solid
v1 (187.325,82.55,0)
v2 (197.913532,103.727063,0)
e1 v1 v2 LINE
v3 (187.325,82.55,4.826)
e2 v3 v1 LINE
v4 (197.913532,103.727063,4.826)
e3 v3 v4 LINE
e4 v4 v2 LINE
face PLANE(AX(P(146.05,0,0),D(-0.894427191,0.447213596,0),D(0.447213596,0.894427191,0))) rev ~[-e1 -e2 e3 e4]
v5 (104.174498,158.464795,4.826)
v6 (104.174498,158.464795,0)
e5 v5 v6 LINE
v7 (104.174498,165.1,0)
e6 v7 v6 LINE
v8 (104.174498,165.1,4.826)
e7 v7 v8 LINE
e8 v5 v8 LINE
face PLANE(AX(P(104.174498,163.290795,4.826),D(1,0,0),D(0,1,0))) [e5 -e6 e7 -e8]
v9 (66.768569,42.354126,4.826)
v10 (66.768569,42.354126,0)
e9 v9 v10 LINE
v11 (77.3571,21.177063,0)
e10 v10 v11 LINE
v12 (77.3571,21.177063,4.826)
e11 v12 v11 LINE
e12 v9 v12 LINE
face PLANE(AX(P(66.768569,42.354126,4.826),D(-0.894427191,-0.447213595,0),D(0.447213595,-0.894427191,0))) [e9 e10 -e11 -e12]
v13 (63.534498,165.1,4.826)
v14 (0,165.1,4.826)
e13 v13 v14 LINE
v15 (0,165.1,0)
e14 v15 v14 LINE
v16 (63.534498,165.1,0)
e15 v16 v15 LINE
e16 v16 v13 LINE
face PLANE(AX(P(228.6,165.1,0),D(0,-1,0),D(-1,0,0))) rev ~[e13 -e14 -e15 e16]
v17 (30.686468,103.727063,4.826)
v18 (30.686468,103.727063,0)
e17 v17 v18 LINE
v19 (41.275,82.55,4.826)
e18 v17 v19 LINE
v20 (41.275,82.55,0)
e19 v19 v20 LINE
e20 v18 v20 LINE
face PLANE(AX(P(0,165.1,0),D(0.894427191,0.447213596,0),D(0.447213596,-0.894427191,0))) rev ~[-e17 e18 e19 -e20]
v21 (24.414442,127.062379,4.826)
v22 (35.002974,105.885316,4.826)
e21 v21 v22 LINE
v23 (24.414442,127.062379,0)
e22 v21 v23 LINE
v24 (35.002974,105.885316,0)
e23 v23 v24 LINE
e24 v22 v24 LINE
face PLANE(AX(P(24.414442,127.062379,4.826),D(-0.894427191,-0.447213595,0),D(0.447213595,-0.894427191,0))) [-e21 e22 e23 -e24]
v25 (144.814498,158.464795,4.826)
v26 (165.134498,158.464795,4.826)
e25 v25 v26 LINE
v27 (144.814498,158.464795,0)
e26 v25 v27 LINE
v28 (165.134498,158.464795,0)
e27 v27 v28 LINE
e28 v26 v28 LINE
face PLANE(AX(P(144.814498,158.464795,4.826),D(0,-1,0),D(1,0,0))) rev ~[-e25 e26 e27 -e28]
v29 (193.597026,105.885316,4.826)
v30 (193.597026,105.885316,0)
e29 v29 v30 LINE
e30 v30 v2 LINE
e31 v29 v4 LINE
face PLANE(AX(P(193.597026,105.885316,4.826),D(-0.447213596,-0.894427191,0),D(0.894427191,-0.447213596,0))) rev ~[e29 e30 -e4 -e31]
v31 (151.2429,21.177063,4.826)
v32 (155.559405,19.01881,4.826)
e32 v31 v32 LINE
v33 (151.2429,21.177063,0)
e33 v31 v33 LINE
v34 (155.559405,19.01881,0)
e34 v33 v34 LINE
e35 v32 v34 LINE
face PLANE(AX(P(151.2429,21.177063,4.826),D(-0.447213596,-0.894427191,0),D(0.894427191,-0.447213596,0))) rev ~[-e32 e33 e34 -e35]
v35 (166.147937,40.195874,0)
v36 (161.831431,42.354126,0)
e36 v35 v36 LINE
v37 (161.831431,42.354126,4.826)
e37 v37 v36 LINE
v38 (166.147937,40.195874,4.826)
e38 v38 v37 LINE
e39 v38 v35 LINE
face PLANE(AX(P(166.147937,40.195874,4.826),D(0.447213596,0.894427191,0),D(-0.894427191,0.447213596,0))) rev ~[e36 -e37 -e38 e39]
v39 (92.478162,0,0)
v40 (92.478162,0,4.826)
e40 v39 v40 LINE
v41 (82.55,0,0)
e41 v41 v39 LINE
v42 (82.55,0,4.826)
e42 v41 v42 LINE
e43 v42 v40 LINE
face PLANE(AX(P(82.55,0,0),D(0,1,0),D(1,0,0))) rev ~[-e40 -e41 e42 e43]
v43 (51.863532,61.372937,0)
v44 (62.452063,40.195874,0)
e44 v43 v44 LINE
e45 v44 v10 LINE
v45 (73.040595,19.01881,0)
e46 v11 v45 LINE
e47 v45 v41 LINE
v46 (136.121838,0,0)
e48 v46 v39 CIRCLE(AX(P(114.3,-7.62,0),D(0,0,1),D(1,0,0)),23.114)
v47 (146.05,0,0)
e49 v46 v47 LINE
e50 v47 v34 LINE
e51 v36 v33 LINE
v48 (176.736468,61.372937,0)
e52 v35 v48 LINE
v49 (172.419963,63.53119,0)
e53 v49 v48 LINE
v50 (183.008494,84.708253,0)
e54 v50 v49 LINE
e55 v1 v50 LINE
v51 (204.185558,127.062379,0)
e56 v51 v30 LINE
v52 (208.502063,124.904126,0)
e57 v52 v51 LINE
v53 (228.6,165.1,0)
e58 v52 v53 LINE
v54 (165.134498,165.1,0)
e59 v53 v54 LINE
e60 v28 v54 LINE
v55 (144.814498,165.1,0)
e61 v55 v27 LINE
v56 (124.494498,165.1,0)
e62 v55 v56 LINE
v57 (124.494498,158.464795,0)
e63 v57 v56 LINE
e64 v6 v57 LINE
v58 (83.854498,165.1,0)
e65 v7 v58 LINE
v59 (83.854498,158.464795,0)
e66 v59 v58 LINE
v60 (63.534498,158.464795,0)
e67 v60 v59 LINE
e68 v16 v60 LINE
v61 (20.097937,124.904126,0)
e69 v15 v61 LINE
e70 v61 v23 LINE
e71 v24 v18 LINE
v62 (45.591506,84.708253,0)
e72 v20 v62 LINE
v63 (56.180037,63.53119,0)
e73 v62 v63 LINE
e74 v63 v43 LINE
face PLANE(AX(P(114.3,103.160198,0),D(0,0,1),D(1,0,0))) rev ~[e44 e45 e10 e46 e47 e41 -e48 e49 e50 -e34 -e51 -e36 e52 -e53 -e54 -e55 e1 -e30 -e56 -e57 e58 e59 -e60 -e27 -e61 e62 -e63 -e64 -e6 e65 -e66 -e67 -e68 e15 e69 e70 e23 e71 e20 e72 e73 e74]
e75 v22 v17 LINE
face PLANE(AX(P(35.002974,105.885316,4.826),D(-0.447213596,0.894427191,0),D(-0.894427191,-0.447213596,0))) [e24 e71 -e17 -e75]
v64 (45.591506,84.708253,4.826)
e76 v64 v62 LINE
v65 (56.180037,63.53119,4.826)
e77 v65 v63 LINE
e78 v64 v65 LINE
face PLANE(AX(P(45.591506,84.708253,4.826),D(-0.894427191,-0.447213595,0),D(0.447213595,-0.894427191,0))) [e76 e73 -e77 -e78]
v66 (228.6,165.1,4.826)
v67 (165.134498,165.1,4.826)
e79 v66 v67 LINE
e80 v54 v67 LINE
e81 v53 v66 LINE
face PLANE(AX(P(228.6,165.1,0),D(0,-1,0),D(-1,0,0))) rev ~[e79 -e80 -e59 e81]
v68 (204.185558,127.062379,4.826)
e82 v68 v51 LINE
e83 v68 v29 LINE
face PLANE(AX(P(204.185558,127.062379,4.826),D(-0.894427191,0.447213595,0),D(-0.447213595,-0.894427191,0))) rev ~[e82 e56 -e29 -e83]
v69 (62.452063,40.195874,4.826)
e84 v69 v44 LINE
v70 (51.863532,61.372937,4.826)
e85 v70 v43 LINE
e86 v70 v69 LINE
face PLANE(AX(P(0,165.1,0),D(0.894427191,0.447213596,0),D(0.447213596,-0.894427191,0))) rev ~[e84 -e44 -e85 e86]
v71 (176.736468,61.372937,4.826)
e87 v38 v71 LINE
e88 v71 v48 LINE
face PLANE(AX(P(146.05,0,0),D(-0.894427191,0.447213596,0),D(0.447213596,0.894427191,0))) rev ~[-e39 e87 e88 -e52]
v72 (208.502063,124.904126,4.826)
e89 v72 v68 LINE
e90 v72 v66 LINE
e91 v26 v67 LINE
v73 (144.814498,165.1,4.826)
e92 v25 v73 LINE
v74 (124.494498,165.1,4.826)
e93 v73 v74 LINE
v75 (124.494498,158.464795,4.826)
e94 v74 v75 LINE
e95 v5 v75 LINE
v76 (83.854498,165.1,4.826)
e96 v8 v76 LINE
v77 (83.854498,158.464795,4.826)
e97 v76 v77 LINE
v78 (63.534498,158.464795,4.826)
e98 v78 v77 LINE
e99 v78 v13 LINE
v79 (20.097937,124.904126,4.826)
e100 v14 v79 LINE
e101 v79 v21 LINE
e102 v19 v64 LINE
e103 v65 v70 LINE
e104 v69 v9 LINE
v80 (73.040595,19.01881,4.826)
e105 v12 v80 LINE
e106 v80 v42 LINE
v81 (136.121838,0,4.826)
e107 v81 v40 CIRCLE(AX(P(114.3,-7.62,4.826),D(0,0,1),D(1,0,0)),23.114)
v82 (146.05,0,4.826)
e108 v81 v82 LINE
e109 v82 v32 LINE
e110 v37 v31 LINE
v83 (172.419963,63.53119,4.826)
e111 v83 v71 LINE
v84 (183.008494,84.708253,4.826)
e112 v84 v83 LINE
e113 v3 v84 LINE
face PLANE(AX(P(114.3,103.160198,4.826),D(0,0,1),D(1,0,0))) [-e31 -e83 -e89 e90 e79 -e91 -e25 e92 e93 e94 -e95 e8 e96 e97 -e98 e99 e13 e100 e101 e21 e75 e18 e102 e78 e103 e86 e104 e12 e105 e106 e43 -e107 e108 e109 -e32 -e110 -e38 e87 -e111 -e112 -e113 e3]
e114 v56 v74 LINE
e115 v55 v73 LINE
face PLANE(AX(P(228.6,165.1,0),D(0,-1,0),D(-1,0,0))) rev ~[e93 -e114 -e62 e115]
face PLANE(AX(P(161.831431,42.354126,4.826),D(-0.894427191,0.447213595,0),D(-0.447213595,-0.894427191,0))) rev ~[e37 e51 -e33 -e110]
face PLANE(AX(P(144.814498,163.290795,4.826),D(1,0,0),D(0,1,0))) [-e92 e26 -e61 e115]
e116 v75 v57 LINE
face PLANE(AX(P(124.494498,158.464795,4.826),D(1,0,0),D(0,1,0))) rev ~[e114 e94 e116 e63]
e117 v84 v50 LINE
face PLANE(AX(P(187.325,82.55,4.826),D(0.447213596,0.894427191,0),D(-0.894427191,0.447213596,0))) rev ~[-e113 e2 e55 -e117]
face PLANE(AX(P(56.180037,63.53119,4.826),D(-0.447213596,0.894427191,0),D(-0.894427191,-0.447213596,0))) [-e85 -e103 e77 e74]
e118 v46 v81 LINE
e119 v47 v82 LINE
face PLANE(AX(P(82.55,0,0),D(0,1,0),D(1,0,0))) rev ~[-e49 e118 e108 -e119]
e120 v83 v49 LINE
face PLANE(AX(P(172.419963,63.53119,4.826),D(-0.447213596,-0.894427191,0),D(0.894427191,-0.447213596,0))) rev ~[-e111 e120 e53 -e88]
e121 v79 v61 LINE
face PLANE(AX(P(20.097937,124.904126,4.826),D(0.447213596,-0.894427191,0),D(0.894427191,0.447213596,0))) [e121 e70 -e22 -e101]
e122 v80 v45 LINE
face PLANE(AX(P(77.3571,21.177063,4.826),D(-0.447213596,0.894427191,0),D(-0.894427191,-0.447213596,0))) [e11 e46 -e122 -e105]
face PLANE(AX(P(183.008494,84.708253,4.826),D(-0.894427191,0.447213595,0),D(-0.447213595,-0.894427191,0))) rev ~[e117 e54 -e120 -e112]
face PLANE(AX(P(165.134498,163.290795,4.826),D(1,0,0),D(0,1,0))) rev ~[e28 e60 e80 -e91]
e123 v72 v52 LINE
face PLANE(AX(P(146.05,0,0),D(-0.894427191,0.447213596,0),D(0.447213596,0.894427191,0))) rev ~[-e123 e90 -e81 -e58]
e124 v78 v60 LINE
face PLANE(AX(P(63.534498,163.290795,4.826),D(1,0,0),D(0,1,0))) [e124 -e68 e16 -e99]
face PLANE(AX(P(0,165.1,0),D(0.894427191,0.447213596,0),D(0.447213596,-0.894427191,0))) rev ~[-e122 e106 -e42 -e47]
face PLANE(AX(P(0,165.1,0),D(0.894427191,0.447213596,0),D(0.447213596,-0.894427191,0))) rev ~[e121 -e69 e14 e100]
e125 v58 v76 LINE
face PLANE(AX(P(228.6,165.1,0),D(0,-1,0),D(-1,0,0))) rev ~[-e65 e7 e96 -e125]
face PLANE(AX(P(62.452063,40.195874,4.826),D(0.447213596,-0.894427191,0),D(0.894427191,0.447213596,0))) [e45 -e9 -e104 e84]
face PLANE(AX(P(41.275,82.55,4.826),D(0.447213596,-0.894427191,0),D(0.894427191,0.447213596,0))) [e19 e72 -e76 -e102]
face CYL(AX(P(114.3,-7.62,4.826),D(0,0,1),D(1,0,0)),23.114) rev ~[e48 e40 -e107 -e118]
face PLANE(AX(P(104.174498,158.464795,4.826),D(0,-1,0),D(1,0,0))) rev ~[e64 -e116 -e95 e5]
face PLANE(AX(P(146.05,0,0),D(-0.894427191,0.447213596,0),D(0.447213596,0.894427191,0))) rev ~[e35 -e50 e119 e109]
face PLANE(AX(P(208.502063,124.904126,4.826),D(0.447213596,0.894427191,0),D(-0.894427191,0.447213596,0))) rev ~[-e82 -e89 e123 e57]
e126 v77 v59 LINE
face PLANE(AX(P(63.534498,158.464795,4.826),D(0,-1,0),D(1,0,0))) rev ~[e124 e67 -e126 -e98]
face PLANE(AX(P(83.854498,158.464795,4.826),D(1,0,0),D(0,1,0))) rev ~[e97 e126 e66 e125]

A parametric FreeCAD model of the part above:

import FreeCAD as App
import Part
import Sketcher
Q = App.Units.Quantity


def add_polygon(sketch, points):
    """Adds a closed chain of lines whose ends are joined by coincident constraints."""
    first, n = sketch.GeometryCount, len(points)
    for a, b in zip(points, points[1:] + points[:1]):
        sketch.addGeometry(Part.LineSegment(App.Vector(*a, 0), App.Vector(*b, 0)), False)
    for i in range(n):
        sketch.addConstraint(Sketcher.Constraint("Coincident", first + i, 2, first + (i + 1) % n, 1))

doc = App.newDocument("Part")
body = doc.addObject("PartDesign::Body", "Body")

# Sketch on XY plane
sketch1 = doc.addObject("Sketcher::SketchObject", "Sketch")
body.addObject(sketch1)
sketch1.AttachmentSupport = (doc.XY_Plane, [""])
sketch1.MapMode = "FlatFace"
add_polygon(sketch1, [(229, 165), (0, 165), (83, 0), (146, 0)])  # lines 0-3
sketch1.addConstraint([
    Sketcher.Constraint("Horizontal", 0),
    Sketcher.Constraint("Horizontal", 2),
    Sketcher.Constraint("PointOnObject", 0, 2, -2),
    Sketcher.Constraint("PointOnObject", 1, 2, -1),
    Sketcher.Constraint("Equal", 1, 3),
    Sketcher.Constraint("DistanceX", 0, 2, 0, 1, Q("9 in")),
    Sketcher.Constraint("DistanceX", 2, 1, 2, 2, Q("2.5 in")),
    Sketcher.Constraint("DistanceY", -1, 1, 0, 2, Q("6.5 in")),
])
pad1 = doc.addObject("PartDesign::Pad", "Pad")
body.addObject(pad1)
pad1.Profile = sketch1
pad1.Length = Q("0.19 in")

# Sketch on XY plane
sketch2 = doc.addObject("Sketcher::SketchObject", "Sketch001")
body.addObject(sketch2)
sketch2.AttachmentSupport = (doc.XY_Plane, [""])
sketch2.MapMode = "FlatFace"
sketch2.AttachmentOffset = App.Placement(App.Vector(0, 0, 0.19 * 25.4), App.Rotation())
add_polygon(sketch2, [(24.4, 127.1), (20.1, 124.9), (30.7, 103.7), (35, 105.9)])  # lines 0-3
add_polygon(sketch2, [(45.6, 84.7), (41.3, 82.5), (51.9, 61.4), (56.2, 63.5)])  # lines 4-7
add_polygon(sketch2, [(66.8, 42.4), (62.5, 40.2), (73, 19), (77.4, 21.2)])  # lines 8-11
add_polygon(sketch2, [(155.6, 19), (166.1, 40.2), (161.8, 42.4), (151.2, 21.2)])  # lines 12-15
add_polygon(sketch2, [(176.7, 61.4), (187.3, 82.5), (183, 84.7), (172.4, 63.5)])  # lines 16-19
add_polygon(sketch2, [(197.9, 103.7), (208.5, 124.9), (204.2, 127.1), (193.6, 105.9)])  # lines 20-23
sketch2.addConstraint([
    Sketcher.Constraint("Perpendicular", 0, 1),
    Sketcher.Constraint("Perpendicular", 1, 2),
    Sketcher.Constraint("Perpendicular", 2, 3),
    Sketcher.Constraint("Perpendicular", 3, 4),
    Sketcher.Constraint("Perpendicular", 4, 5),
    Sketcher.Constraint("Perpendicular", 5, 6),
    Sketcher.Constraint("Perpendicular", 6, 7),
    Sketcher.Constraint("Perpendicular", 7, 8),
    Sketcher.Constraint("Perpendicular", 8, 9),
    Sketcher.Constraint("Perpendicular", 9, 10),
    Sketcher.Constraint("Perpendicular", 10, 11),
    Sketcher.Constraint("Perpendicular", 12, 13),
    Sketcher.Constraint("Perpendicular", 13, 14),
    Sketcher.Constraint("Perpendicular", 14, 15),
    Sketcher.Constraint("Perpendicular", 15, 16),
    Sketcher.Constraint("Perpendicular", 16, 17),
    Sketcher.Constraint("Perpendicular", 17, 18),
    Sketcher.Constraint("Perpendicular", 18, 19),
    Sketcher.Constraint("Perpendicular", 19, 20),
    Sketcher.Constraint("Perpendicular", 20, 21),
    Sketcher.Constraint("Perpendicular", 21, 22),
    Sketcher.Constraint("Perpendicular", 22, 23),
    Sketcher.Constraint("Horizontal", 8, 2, 12, 2),
    Sketcher.Constraint("Horizontal", 11, 2, 13, 2),
    Sketcher.Constraint("Horizontal", 10, 2, 14, 2),
    Sketcher.Constraint("Horizontal", 4, 2, 16, 2),
    Sketcher.Constraint("Horizontal", 7, 2, 17, 2),
    Sketcher.Constraint("Horizontal", 6, 2, 18, 2),
    Sketcher.Constraint("Horizontal", 0, 2, 20, 2),
    Sketcher.Constraint("Horizontal", 3, 2, 21, 2),
    Sketcher.Constraint("Horizontal", 2, 2, 22, 2),
    Sketcher.Constraint("Equal", 2, 4),
    Sketcher.Constraint("Equal", 3, 5),
    Sketcher.Constraint("Equal", 6, 8),
    Sketcher.Constraint("Equal", 7, 9),
    Sketcher.Constraint("Equal", 11, 12),
    Sketcher.Constraint("Distance", 0, Q("0.19 in")),
    Sketcher.Constraint("DistanceY", -1, 1, 4, 2, Q("3.25 in")),
    Sketcher.Constraint("DistanceX", -1, 1, 4, 2, Q("1.625 in")),
    Sketcher.Constraint("DistanceX", -1, 1, 16, 2, Q("7.375 in")),
    Sketcher.Constraint("DistanceX", -1, 1, 10, 2, 77.3571),
    Sketcher.Constraint("DistanceX", -1, 1, 14, 2, 151.2429),
    Sketcher.Constraint("DistanceX", 18, 2, 20, 2, 36.0821),
    Sketcher.Constraint("DistanceX", -1, 1, 1, 2, 30.686468),
    Sketcher.Constraint("DistanceY", -1, 1, 3, 2, 127.062379),
    Sketcher.Constraint("DistanceX", -1, 1, 5, 2, 51.863532),
    Sketcher.Constraint("DistanceY", -1, 1, 6, 2, 63.53119),
    Sketcher.Constraint("DistanceY", -1, 1, 9, 2, 19.01881),
])
pocket1 = doc.addObject("PartDesign::Pocket", "Pocket")
body.addObject(pocket1)
pocket1.Profile = sketch2
pocket1.Type = "ThroughAll"

# Sketch on XY plane
sketch3 = doc.addObject("Sketcher::SketchObject", "Sketch002")
body.addObject(sketch3)
sketch3.AttachmentSupport = (doc.XY_Plane, [""])
sketch3.MapMode = "FlatFace"
sketch3.AttachmentOffset = App.Placement(App.Vector(0, 0, 0.19 * 25.4), App.Rotation())
sketch3.addGeometry(Part.Circle(App.Vector(114, -8, 0), App.Vector(0, 0, 1), 23), False)
sketch3.addConstraint([
    Sketcher.Constraint("Diameter", 0, Q("1.82 in")),
    Sketcher.Constraint("DistanceX", -1, 1, 0, 3, Q("4.5 in")),
    Sketcher.Constraint("DistanceY", 0, 3, -1, 1, Q("0.3 in")),
])
pocket2 = doc.addObject("PartDesign::Pocket", "Pocket001")
body.addObject(pocket2)
pocket2.Profile = sketch3
pocket2.Length = Q("0.19 in")

# Sketch on XY plane
sketch4 = doc.addObject("Sketcher::SketchObject", "Sketch003")
body.addObject(sketch4)
sketch4.AttachmentSupport = (doc.XY_Plane, [""])
sketch4.MapMode = "FlatFace"
sketch4.AttachmentOffset = App.Placement(App.Vector(0, 0, 0.19 * 25.4), App.Rotation())
add_polygon(sketch4, [(144.8, 167.9), (144.8, 163.3), (165.1, 163.3), (165.1, 167.9)])  # lines 0-3
add_polygon(sketch4, [(104.2, 167.9), (104.2, 163.3), (124.5, 163.3), (124.5, 167.9)])  # lines 4-7
add_polygon(sketch4, [(63.5, 167.9), (63.5, 163.3), (83.9, 163.3), (83.9, 167.9)])  # lines 8-11
sketch4.addConstraint([
    Sketcher.Constraint("Vertical", 0),
    Sketcher.Constraint("Horizontal", 1),
    Sketcher.Constraint("Vertical", 2),
    Sketcher.Constraint("Horizontal", 3),
    Sketcher.Constraint("Vertical", 4),
    Sketcher.Constraint("Horizontal", 5),
    Sketcher.Constraint("Vertical", 6),
    Sketcher.Constraint("Horizontal", 7),
    Sketcher.Constraint("Vertical", 8),
    Sketcher.Constraint("Horizontal", 9),
    Sketcher.Constraint("Vertical", 10),
    Sketcher.Constraint("Horizontal", 11),
    Sketcher.Constraint("Horizontal", 1, 2, 4, 2),
    Sketcher.Constraint("Horizontal", 3, 2, 6, 2),
    Sketcher.Constraint("Horizontal", 5, 2, 8, 2),
    Sketcher.Constraint("Horizontal", 7, 2, 10, 2),
    Sketcher.Constraint("Equal", 3, 5),
    Sketcher.Constraint("Equal", 7, 9),
    Sketcher.Constraint("DistanceX", 1, 1, 1, 2, Q("0.8 in")),
    Sketcher.Constraint("DistanceX", 4, 2, 0, 2, Q("1.6 in")),
    Sketcher.Constraint("DistanceX", 8, 2, 4, 2, Q("1.6 in")),
    Sketcher.Constraint("DistanceY", 0, 2, 0, 1, 4.61725),
    Sketcher.Constraint("DistanceX", -1, 1, 0, 2, 144.814498),
    Sketcher.Constraint("DistanceY", -1, 1, 0, 2, 163.290795),
])
pocket3 = doc.addObject("PartDesign::Pocket", "Pocket002")
body.addObject(pocket3)
pocket3.Profile = sketch4
pocket3.Type = "ThroughAll"

# Sketch on XY plane
sketch5 = doc.addObject("Sketcher::SketchObject", "Sketch004")
body.addObject(sketch5)
sketch5.AttachmentSupport = (doc.XY_Plane, [""])
sketch5.MapMode = "FlatFace"
sketch5.AttachmentOffset = App.Placement(App.Vector(0, 0, 0.19 * 25.4), App.Rotation())
add_polygon(sketch5, [(144.8, 163.3), (144.8, 158.5), (165.1, 158.5), (165.1, 163.3)])  # lines 0-3
add_polygon(sketch5, [(104.2, 163.3), (104.2, 158.5), (124.5, 158.5), (124.5, 163.3)])  # lines 4-7
add_polygon(sketch5, [(63.5, 163.3), (63.5, 158.5), (83.9, 158.5), (83.9, 163.3)])  # lines 8-11
sketch5.addConstraint([
    Sketcher.Constraint("Vertical", 0),
    Sketcher.Constraint("Horizontal", 1),
    Sketcher.Constraint("Vertical", 2),
    Sketcher.Constraint("Horizontal", 3),
    Sketcher.Constraint("Vertical", 4),
    Sketcher.Constraint("Horizontal", 5),
    Sketcher.Constraint("Vertical", 6),
    Sketcher.Constraint("Horizontal", 7),
    Sketcher.Constraint("Vertical", 8),
    Sketcher.Constraint("Horizontal", 9),
    Sketcher.Constraint("Vertical", 10),
    Sketcher.Constraint("Horizontal", 11),
    Sketcher.Constraint("Horizontal", 1, 2, 4, 2),
    Sketcher.Constraint("Horizontal", 3, 2, 6, 2),
    Sketcher.Constraint("Horizontal", 5, 2, 8, 2),
    Sketcher.Constraint("Horizontal", 7, 2, 10, 2),
    Sketcher.Constraint("Equal", 3, 5),
    Sketcher.Constraint("Equal", 7, 9),
    Sketcher.Constraint("DistanceX", 1, 1, 1, 2, Q("0.8 in")),
    Sketcher.Constraint("DistanceY", 0, 2, 0, 1, Q("0.19 in")),
    Sketcher.Constraint("DistanceX", 4, 2, 0, 2, Q("1.6 in")),
    Sketcher.Constraint("DistanceX", 8, 2, 4, 2, Q("1.6 in")),
    Sketcher.Constraint("DistanceX", -1, 1, 0, 2, 144.814498),
    Sketcher.Constraint("DistanceY", -1, 1, 0, 2, 158.464795),
])
pocket4 = doc.addObject("PartDesign::Pocket", "Pocket003")
body.addObject(pocket4)
pocket4.Profile = sketch5
pocket4.Type = "ThroughAll"

doc.recompute()
